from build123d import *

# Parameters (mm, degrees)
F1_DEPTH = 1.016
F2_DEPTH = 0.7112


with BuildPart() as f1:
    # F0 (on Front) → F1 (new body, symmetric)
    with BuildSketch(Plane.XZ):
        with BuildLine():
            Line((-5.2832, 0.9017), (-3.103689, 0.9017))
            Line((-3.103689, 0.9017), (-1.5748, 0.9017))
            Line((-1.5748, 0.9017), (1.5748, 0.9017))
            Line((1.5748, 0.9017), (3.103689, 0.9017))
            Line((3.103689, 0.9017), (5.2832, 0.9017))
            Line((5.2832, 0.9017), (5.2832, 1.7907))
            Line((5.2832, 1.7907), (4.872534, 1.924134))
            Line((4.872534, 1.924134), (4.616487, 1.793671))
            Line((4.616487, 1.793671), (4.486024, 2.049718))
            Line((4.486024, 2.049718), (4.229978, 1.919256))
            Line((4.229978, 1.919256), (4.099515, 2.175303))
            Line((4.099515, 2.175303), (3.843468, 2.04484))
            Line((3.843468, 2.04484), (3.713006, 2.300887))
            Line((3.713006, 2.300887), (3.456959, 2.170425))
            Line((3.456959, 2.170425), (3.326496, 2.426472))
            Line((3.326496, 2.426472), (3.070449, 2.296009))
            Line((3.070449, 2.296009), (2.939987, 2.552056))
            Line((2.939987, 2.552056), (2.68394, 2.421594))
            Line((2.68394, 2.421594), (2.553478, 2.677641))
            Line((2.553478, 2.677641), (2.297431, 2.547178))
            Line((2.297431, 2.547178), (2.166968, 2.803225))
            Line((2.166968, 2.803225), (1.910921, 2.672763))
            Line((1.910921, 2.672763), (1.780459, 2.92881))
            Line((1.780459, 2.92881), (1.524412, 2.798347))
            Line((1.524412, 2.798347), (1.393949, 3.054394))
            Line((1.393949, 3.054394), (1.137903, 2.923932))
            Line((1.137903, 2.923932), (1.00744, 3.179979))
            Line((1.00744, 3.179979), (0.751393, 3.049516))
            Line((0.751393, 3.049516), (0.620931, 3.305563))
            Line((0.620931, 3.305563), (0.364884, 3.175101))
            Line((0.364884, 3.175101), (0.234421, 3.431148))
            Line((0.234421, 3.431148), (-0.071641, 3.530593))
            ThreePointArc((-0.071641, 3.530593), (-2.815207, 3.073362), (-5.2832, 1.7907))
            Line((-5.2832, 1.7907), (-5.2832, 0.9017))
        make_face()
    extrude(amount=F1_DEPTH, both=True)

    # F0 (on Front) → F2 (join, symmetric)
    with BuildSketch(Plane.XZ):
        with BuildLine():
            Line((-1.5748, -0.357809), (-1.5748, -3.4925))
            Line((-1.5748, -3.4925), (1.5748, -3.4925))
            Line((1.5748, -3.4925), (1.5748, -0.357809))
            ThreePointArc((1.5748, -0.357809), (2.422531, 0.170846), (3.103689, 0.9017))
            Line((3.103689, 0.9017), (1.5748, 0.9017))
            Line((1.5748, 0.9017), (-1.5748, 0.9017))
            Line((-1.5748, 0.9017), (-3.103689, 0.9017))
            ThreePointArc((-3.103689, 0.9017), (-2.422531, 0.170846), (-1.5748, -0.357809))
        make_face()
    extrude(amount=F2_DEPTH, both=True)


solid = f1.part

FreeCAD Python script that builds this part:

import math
import FreeCAD as App
import Part
import Sketcher
from FreeCAD import Vector
Q = App.Units.Quantity

doc = App.newDocument("Part")
body = doc.addObject("PartDesign::Body", "Body")

sketch1 = body.newObject("Sketcher::SketchObject", "Sketch")
sketch1.AttachmentSupport = (doc.getObject("XZ_Plane"), [""])
sketch1.MapMode = "FlatFace"
sketch1.addGeometry(Part.LineSegment(Vector(-5.28, 0.9, 0), Vector(5.28, 0.9, 0)), False)
sketch1.addGeometry(Part.LineSegment(Vector(5.28, 0.9, 0), Vector(5.28, 1.79, 0)), False)
sketch1.addGeometry(Part.LineSegment(Vector(5.28, 1.79, 0), Vector(4.87, 1.92, 0)), False)
sketch1.addGeometry(Part.LineSegment(Vector(4.87, 1.92, 0), Vector(4.62, 1.79, 0)), False)
sketch1.addGeometry(Part.LineSegment(Vector(4.62, 1.79, 0), Vector(4.49, 2.05, 0)), False)
sketch1.addGeometry(Part.LineSegment(Vector(4.49, 2.05, 0), Vector(4.23, 1.92, 0)), False)
sketch1.addGeometry(Part.LineSegment(Vector(4.23, 1.92, 0), Vector(4.1, 2.18, 0)), False)
sketch1.addGeometry(Part.LineSegment(Vector(4.1, 2.18, 0), Vector(3.84, 2.04, 0)), False)
sketch1.addGeometry(Part.LineSegment(Vector(3.84, 2.04, 0), Vector(3.71, 2.3, 0)), False)
sketch1.addGeometry(Part.LineSegment(Vector(3.71, 2.3, 0), Vector(3.46, 2.17, 0)), False)
sketch1.addGeometry(Part.LineSegment(Vector(3.46, 2.17, 0), Vector(3.33, 2.43, 0)), False)
sketch1.addGeometry(Part.LineSegment(Vector(3.33, 2.43, 0), Vector(3.07, 2.3, 0)), False)
sketch1.addGeometry(Part.LineSegment(Vector(3.07, 2.3, 0), Vector(2.94, 2.55, 0)), False)
sketch1.addGeometry(Part.LineSegment(Vector(2.94, 2.55, 0), Vector(2.68, 2.42, 0)), False)
sketch1.addGeometry(Part.LineSegment(Vector(2.68, 2.42, 0), Vector(2.55, 2.68, 0)), False)
sketch1.addGeometry(Part.LineSegment(Vector(2.55, 2.68, 0), Vector(2.3, 2.55, 0)), False)
sketch1.addGeometry(Part.LineSegment(Vector(2.3, 2.55, 0), Vector(2.17, 2.8, 0)), False)
sketch1.addGeometry(Part.LineSegment(Vector(2.17, 2.8, 0), Vector(1.91, 2.67, 0)), False)
sketch1.addGeometry(Part.LineSegment(Vector(1.91, 2.67, 0), Vector(1.78, 2.93, 0)), False)
sketch1.addGeometry(Part.LineSegment(Vector(1.78, 2.93, 0), Vector(1.52, 2.8, 0)), False)
sketch1.addGeometry(Part.LineSegment(Vector(1.52, 2.8, 0), Vector(1.39, 3.05, 0)), False)
sketch1.addGeometry(Part.LineSegment(Vector(1.39, 3.05, 0), Vector(1.14, 2.92, 0)), False)
sketch1.addGeometry(Part.LineSegment(Vector(1.14, 2.92, 0), Vector(1.01, 3.18, 0)), False)
sketch1.addGeometry(Part.LineSegment(Vector(1.01, 3.18, 0), Vector(0.75, 3.05, 0)), False)
sketch1.addGeometry(Part.LineSegment(Vector(0.75, 3.05, 0), Vector(0.62, 3.31, 0)), False)
sketch1.addGeometry(Part.LineSegment(Vector(0.62, 3.31, 0), Vector(0.36, 3.18, 0)), False)
sketch1.addGeometry(Part.LineSegment(Vector(0.36, 3.18, 0), Vector(0.23, 3.43, 0)), False)
sketch1.addGeometry(Part.LineSegment(Vector(0.23, 3.43, 0), Vector(-0.07, 3.53, 0)), False)
sketch1.addGeometry(Part.ArcOfCircle(Part.Circle(Vector(0, -5.36, 0), Vector(0, 0, 1), 8.89), math.radians(90), math.radians(126)), False)
sketch1.addGeometry(Part.LineSegment(Vector(-5.28, 1.79, 0), Vector(-5.28, 0.9, 0)), False)
sketch1.addConstraint(Sketcher.Constraint("Coincident", 0, 2, 1, 1))
sketch1.addConstraint(Sketcher.Constraint("Coincident", 1, 2, 2, 1))
sketch1.addConstraint(Sketcher.Constraint("Coincident", 2, 2, 3, 1))
sketch1.addConstraint(Sketcher.Constraint("Coincident", 3, 2, 4, 1))
sketch1.addConstraint(Sketcher.Constraint("Coincident", 4, 2, 5, 1))
sketch1.addConstraint(Sketcher.Constraint("Coincident", 5, 2, 6, 1))
sketch1.addConstraint(Sketcher.Constraint("Coincident", 6, 2, 7, 1))
sketch1.addConstraint(Sketcher.Constraint("Coincident", 7, 2, 8, 1))
sketch1.addConstraint(Sketcher.Constraint("Coincident", 8, 2, 9, 1))
sketch1.addConstraint(Sketcher.Constraint("Coincident", 9, 2, 10, 1))
sketch1.addConstraint(Sketcher.Constraint("Coincident", 10, 2, 11, 1))
sketch1.addConstraint(Sketcher.Constraint("Coincident", 11, 2, 12, 1))
sketch1.addConstraint(Sketcher.Constraint("Coincident", 12, 2, 13, 1))
sketch1.addConstraint(Sketcher.Constraint("Coincident", 13, 2, 14, 1))
sketch1.addConstraint(Sketcher.Constraint("Coincident", 14, 2, 15, 1))
sketch1.addConstraint(Sketcher.Constraint("Coincident", 15, 2, 16, 1))
sketch1.addConstraint(Sketcher.Constraint("Coincident", 16, 2, 17, 1))
sketch1.addConstraint(Sketcher.Constraint("Coincident", 17, 2, 18, 1))
sketch1.addConstraint(Sketcher.Constraint("Coincident", 18, 2, 19, 1))
sketch1.addConstraint(Sketcher.Constraint("Coincident", 19, 2, 20, 1))
sketch1.addConstraint(Sketcher.Constraint("Coincident", 20, 2, 21, 1))
sketch1.addConstraint(Sketcher.Constraint("Coincident", 21, 2, 22, 1))
sketch1.addConstraint(Sketcher.Constraint("Coincident", 22, 2, 23, 1))
sketch1.addConstraint(Sketcher.Constraint("Coincident", 23, 2, 24, 1))
sketch1.addConstraint(Sketcher.Constraint("Coincident", 24, 2, 25, 1))
sketch1.addConstraint(Sketcher.Constraint("Coincident", 25, 2, 26, 1))
sketch1.addConstraint(Sketcher.Constraint("Coincident", 26, 2, 27, 1))
sketch1.addConstraint(Sketcher.Constraint("Coincident", 27, 2, 28, 1))
sketch1.addConstraint(Sketcher.Constraint("Coincident", 28, 2, 29, 1))
sketch1.addConstraint(Sketcher.Constraint("Coincident", 29, 2, 0, 1))
sketch1.addConstraint(Sketcher.Constraint("Horizontal", 0))
sketch1.addConstraint(Sketcher.Constraint("Vertical", 1))
sketch1.addConstraint(Sketcher.Constraint("Vertical", 29))
sketch1.addConstraint(Sketcher.Constraint("Symmetric", 1, 2, 28, 2, -2))
sketch1.addConstraint(Sketcher.Constraint("Perpendicular", 3, 4))
sketch1.addConstraint(Sketcher.Constraint("Perpendicular", 4, 5))
sketch1.addConstraint(Sketcher.Constraint("Perpendicular", 5, 6))
sketch1.addConstraint(Sketcher.Constraint("Perpendicular", 6, 7))
sketch1.addConstraint(Sketcher.Constraint("Perpendicular", 5, 8))
sketch1.addConstraint(Sketcher.Constraint("Perpendicular", 8, 9))
sketch1.addConstraint(Sketcher.Constraint("Perpendicular", 7, 10))
sketch1.addConstraint(Sketcher.Constraint("Perpendicular", 10, 11))
sketch1.addConstraint(Sketcher.Constraint("Perpendicular", 9, 12))
sketch1.addConstraint(Sketcher.Constraint("Perpendicular", 12, 13))
sketch1.addConstraint(Sketcher.Constraint("Perpendicular", 13, 14))
sketch1.addConstraint(Sketcher.Constraint("Parallel", 11, 15))
sketch1.addConstraint(Sketcher.Constraint("Perpendicular", 15, 16))
sketch1.addConstraint(Sketcher.Constraint("Perpendicular", 14, 17))
sketch1.addConstraint(Sketcher.Constraint("Perpendicular", 17, 18))
sketch1.addConstraint(Sketcher.Constraint("Perpendicular", 16, 19))
sketch1.addConstraint(Sketcher.Constraint("Perpendicular", 19, 20))
sketch1.addConstraint(Sketcher.Constraint("Perpendicular", 20, 21))
sketch1.addConstraint(Sketcher.Constraint("Perpendicular", 21, 22))
sketch1.addConstraint(Sketcher.Constraint("Perpendicular", 22, 23))
sketch1.addConstraint(Sketcher.Constraint("Perpendicular", 21, 24))
sketch1.addConstraint(Sketcher.Constraint("Perpendicular", 24, 25))
sketch1.addConstraint(Sketcher.Constraint("Perpendicular", 23, 26))
sketch1.addConstraint(Sketcher.Constraint("Equal", 3, 4))
sketch1.addConstraint(Sketcher.Constraint("Equal", 4, 5))
sketch1.addConstraint(Sketcher.Constraint("Equal", 5, 6))
sketch1.addConstraint(Sketcher.Constraint("Equal", 6, 7))
sketch1.addConstraint(Sketcher.Constraint("Equal", 7, 8))
sketch1.addConstraint(Sketcher.Constraint("Equal", 8, 9))
sketch1.addConstraint(Sketcher.Constraint("Equal", 9, 10))
sketch1.addConstraint(Sketcher.Constraint("Equal", 10, 11))
sketch1.addConstraint(Sketcher.Constraint("Equal", 11, 12))
sketch1.addConstraint(Sketcher.Constraint("Equal", 12, 13))
sketch1.addConstraint(Sketcher.Constraint("Equal", 13, 14))
sketch1.addConstraint(Sketcher.Constraint("Equal", 14, 15))
sketch1.addConstraint(Sketcher.Constraint("Equal", 15, 16))
sketch1.addConstraint(Sketcher.Constraint("Equal", 16, 17))
sketch1.addConstraint(Sketcher.Constraint("Equal", 17, 18))
sketch1.addConstraint(Sketcher.Constraint("Equal", 18, 19))
sketch1.addConstraint(Sketcher.Constraint("Equal", 19, 20))
sketch1.addConstraint(Sketcher.Constraint("Equal", 20, 21))
sketch1.addConstraint(Sketcher.Constraint("Equal", 21, 22))
sketch1.addConstraint(Sketcher.Constraint("Equal", 22, 23))
sketch1.addConstraint(Sketcher.Constraint("Equal", 23, 24))
sketch1.addConstraint(Sketcher.Constraint("Equal", 24, 25))
sketch1.addConstraint(Sketcher.Constraint("Equal", 25, 26))
sketch1.addConstraint(Sketcher.Constraint("Angle", 5, Q("-152.999992 deg")))
sketch1.addConstraint(Sketcher.Constraint("DistanceX", 0, 1, 0, 2, Q("0.416 in")))
sketch1.addConstraint(Sketcher.Constraint("DistanceY", 1, 1, 1, 2, Q("0.035 in")))
sketch1.addConstraint(Sketcher.Constraint("Distance", 2, Q("0.017 in")))
sketch1.addConstraint(Sketcher.Constraint("DistanceX", 28, 3, 0, 2, Q("0.2080002 in")))
sketch1.addConstraint(Sketcher.Constraint("DistanceY", -1, 1, 0, 2, Q("0.0355 in")))
sketch1.addConstraint(Sketcher.Constraint("Radius", 28, Q("8.889986 mm")))
sketch1.addConstraint(Sketcher.Constraint("DistanceY", -1, 1, 25, 2, Q("3.175101 mm")))
sketch1.addConstraint(Sketcher.Constraint("Distance", 3, Q("0.287369 mm")))
sketch1.addConstraint(Sketcher.Constraint("DistanceX", 27, 2, -1, 1, Q("0.071641 mm")))
pad1 = body.newObject("PartDesign::Pad", "Pad")
pad1.Profile = sketch1
pad1.Length = Q("0.08 in")
pad1.Midplane = True

sketch2 = body.newObject("Sketcher::SketchObject", "Sketch001")
sketch2.AttachmentSupport = (doc.getObject("XZ_Plane"), [""])
sketch2.MapMode = "FlatFace"
sketch2.addGeometry(Part.LineSegment(Vector(-1.6, -0.4, 0), Vector(-1.6, -3.5, 0)), False)
sketch2.addGeometry(Part.LineSegment(Vector(-1.6, -3.5, 0), Vector(1.6, -3.5, 0)), False)
sketch2.addGeometry(Part.LineSegment(Vector(1.6, -3.5, 0), Vector(1.6, -0.4, 0)), False)
sketch2.addGeometry(Part.ArcOfCircle(Part.Circle(Vector(0, 3.1, 0), Vector(0, 0, 1), 3.8), math.radians(-66), math.radians(-35)), False)
sketch2.addGeometry(Part.LineSegment(Vector(3.1, 0.9, 0), Vector(-3.1, 0.9, 0)), False)
sketch2.addGeometry(Part.ArcOfCircle(Part.Circle(Vector(0, 3.1, 0), Vector(0, 0, 1), 3.8), math.radians(-145), math.radians(-114)), False)
sketch2.addConstraint(Sketcher.Constraint("Coincident", 0, 2, 1, 1))
sketch2.addConstraint(Sketcher.Constraint("Coincident", 1, 2, 2, 1))
sketch2.addConstraint(Sketcher.Constraint("Coincident", 2, 2, 3, 1))
sketch2.addConstraint(Sketcher.Constraint("Coincident", 3, 2, 4, 1))
sketch2.addConstraint(Sketcher.Constraint("Coincident", 4, 2, 5, 1))
sketch2.addConstraint(Sketcher.Constraint("Coincident", 5, 2, 0, 1))
sketch2.addConstraint(Sketcher.Constraint("Vertical", 0))
sketch2.addConstraint(Sketcher.Constraint("Horizontal", 1))
sketch2.addConstraint(Sketcher.Constraint("Vertical", 2))
sketch2.addConstraint(Sketcher.Constraint("Horizontal", 4))
sketch2.addConstraint(Sketcher.Constraint("Coincident", 5, 3, 3, 3))
sketch2.addConstraint(Sketcher.Constraint("Equal", 3, 5))
sketch2.addConstraint(Sketcher.Constraint("Symmetric", 2, 2, 5, 2, -2))
sketch2.addConstraint(Sketcher.Constraint("DistanceX", 1, 1, 1, 2, Q("0.124 in")))
sketch2.addConstraint(Sketcher.Constraint("DistanceY", 0, 2, 5, 3, Q("0.2599998 in")))
sketch2.addConstraint(Sketcher.Constraint("DistanceY", 3, 2, 3, 3, Q("0.0869998 in")))
sketch2.addConstraint(Sketcher.Constraint("DistanceY", -1, 1, 3, 3, Q("0.1224998 in")))
sketch2.addConstraint(Sketcher.Constraint("Radius", 3, Q("3.809994 mm")))
pad2 = body.newObject("PartDesign::Pad", "Pad001")
pad2.Profile = sketch2
pad2.Length = Q("0.056 in")
pad2.Midplane = True

doc.recompute()
